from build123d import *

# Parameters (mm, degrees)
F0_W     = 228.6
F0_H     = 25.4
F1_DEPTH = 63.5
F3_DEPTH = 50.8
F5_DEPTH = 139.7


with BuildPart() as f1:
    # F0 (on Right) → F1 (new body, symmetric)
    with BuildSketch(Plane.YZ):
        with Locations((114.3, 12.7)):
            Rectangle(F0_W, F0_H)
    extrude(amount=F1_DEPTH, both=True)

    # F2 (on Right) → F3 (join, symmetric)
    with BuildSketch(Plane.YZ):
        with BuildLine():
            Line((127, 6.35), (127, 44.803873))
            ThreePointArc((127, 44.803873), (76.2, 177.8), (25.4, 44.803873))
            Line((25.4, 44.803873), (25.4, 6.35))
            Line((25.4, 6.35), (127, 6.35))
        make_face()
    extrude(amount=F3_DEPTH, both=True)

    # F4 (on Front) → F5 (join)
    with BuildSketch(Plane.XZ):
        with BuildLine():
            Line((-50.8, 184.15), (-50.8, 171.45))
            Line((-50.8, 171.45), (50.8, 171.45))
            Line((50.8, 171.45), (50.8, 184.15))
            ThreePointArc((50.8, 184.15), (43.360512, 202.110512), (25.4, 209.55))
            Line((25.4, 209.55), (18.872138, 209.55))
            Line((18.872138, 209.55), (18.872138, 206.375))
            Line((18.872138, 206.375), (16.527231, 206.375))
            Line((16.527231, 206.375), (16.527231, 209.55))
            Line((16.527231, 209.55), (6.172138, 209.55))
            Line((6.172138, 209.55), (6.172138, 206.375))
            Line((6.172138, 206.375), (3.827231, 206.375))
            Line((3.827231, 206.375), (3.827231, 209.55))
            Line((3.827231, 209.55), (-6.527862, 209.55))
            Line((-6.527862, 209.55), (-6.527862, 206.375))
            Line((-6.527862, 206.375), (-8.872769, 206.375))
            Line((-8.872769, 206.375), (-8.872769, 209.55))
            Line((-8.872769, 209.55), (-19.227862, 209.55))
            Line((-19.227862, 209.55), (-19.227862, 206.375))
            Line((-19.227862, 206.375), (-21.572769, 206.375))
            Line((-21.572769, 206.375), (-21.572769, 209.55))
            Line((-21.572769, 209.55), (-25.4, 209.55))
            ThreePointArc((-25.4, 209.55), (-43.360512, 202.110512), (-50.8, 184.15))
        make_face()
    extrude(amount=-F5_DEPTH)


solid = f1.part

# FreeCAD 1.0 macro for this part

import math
import FreeCAD as App
import Part
import Sketcher
Q = App.Units.Quantity

doc = App.newDocument("Part")
body = doc.addObject("PartDesign::Body", "Body")

# Sketch on YZ plane
sketch1 = body.newObject("Sketcher::SketchObject", "Sketch")
sketch1.AttachmentSupport = (doc.getObject("YZ_Plane"), [""])
sketch1.MapMode = "FlatFace"
sketch1.addGeometry(Part.LineSegment(App.Vector(0, 25, 0), App.Vector(0, 0, 0)), False)
sketch1.addGeometry(Part.LineSegment(App.Vector(0, 0, 0), App.Vector(229, 0, 0)), False)
sketch1.addGeometry(Part.LineSegment(App.Vector(229, 0, 0), App.Vector(229, 25, 0)), False)
sketch1.addGeometry(Part.LineSegment(App.Vector(229, 25, 0), App.Vector(0, 25, 0)), False)
sketch1.addConstraint(Sketcher.Constraint("Coincident", 0, 2, 1, 1))
sketch1.addConstraint(Sketcher.Constraint("Coincident", 1, 2, 2, 1))
sketch1.addConstraint(Sketcher.Constraint("Coincident", 2, 2, 3, 1))
sketch1.addConstraint(Sketcher.Constraint("Coincident", 3, 2, 0, 1))
sketch1.addConstraint(Sketcher.Constraint("Vertical", 0))
sketch1.addConstraint(Sketcher.Constraint("Horizontal", 1))
sketch1.addConstraint(Sketcher.Constraint("Vertical", 2))
sketch1.addConstraint(Sketcher.Constraint("Horizontal", 3))
sketch1.addConstraint(Sketcher.Constraint("Coincident", 0, 2, -1, 1))
sketch1.addConstraint(Sketcher.Constraint("DistanceX", 1, 1, 1, 2, Q("9 in")))
sketch1.addConstraint(Sketcher.Constraint("DistanceY", 0, 2, 0, 1, Q("1 in")))
pad1 = body.newObject("PartDesign::Pad", "Pad")
pad1.Profile = sketch1
pad1.Length = Q("5 in")
pad1.Midplane = True

# Sketch on YZ plane
sketch2 = body.newObject("Sketcher::SketchObject", "Sketch001")
sketch2.AttachmentSupport = (doc.getObject("YZ_Plane"), [""])
sketch2.MapMode = "FlatFace"
sketch2.addGeometry(Part.LineSegment(App.Vector(127, 6, 0), App.Vector(127, 45, 0)), False)
sketch2.addGeometry(Part.ArcOfCircle(Part.Circle(App.Vector(76, 102, 0), App.Vector(0, 0, 1), 76), math.radians(-48), math.radians(228)), False)
sketch2.addGeometry(Part.LineSegment(App.Vector(25, 45, 0), App.Vector(25, 6, 0)), False)
sketch2.addGeometry(Part.LineSegment(App.Vector(25, 6, 0), App.Vector(127, 6, 0)), False)
sketch2.addConstraint(Sketcher.Constraint("Coincident", 0, 2, 1, 1))
sketch2.addConstraint(Sketcher.Constraint("Coincident", 1, 2, 2, 1))
sketch2.addConstraint(Sketcher.Constraint("Coincident", 2, 2, 3, 1))
sketch2.addConstraint(Sketcher.Constraint("Coincident", 3, 2, 0, 1))
sketch2.addConstraint(Sketcher.Constraint("Vertical", 0))
sketch2.addConstraint(Sketcher.Constraint("Vertical", 2))
sketch2.addConstraint(Sketcher.Constraint("Horizontal", 3))
sketch2.addConstraint(Sketcher.Constraint("Horizontal", 0, 2, 1, 2))
sketch2.addConstraint(Sketcher.Constraint("Radius", 1, Q("3 in")))
sketch2.addConstraint(Sketcher.Constraint("DistanceX", 3, 1, 3, 2, Q("4 in")))
sketch2.addConstraint(Sketcher.Constraint("DistanceX", -1, 1, 1, 3, Q("3 in")))
sketch2.addConstraint(Sketcher.Constraint("DistanceY", -1, 1, 1, 3, Q("4 in")))
sketch2.addConstraint(Sketcher.Constraint("DistanceY", -1, 1, 2, 2, Q("0.25 in")))
pad2 = body.newObject("PartDesign::Pad", "Pad001")
pad2.Profile = sketch2
pad2.Length = Q("4 in")
pad2.Midplane = True

# Sketch on XZ plane
sketch3 = body.newObject("Sketcher::SketchObject", "Sketch002")
sketch3.AttachmentSupport = (doc.getObject("XZ_Plane"), [""])
sketch3.MapMode = "FlatFace"
sketch3.addGeometry(Part.LineSegment(App.Vector(-50.8, 184.2, 0), App.Vector(-50.8, 171.4, 0)), False)
sketch3.addGeometry(Part.LineSegment(App.Vector(-50.8, 171.4, 0), App.Vector(50.8, 171.4, 0)), False)
sketch3.addGeometry(Part.LineSegment(App.Vector(50.8, 171.4, 0), App.Vector(50.8, 184.2, 0)), False)
sketch3.addGeometry(Part.ArcOfCircle(Part.Circle(App.Vector(25.4, 184.1, 0), App.Vector(0, 0, 1), 25.4), math.radians(0), math.radians(90)), False)
sketch3.addGeometry(Part.LineSegment(App.Vector(25.4, 209.6, 0), App.Vector(18.9, 209.6, 0)), False)
sketch3.addGeometry(Part.LineSegment(App.Vector(18.9, 209.6, 0), App.Vector(18.9, 206.4, 0)), False)
sketch3.addGeometry(Part.LineSegment(App.Vector(18.9, 206.4, 0), App.Vector(16.5, 206.4, 0)), False)
sketch3.addGeometry(Part.LineSegment(App.Vector(16.5, 206.4, 0), App.Vector(16.5, 209.6, 0)), False)
sketch3.addGeometry(Part.LineSegment(App.Vector(16.5, 209.6, 0), App.Vector(6.2, 209.6, 0)), False)
sketch3.addGeometry(Part.LineSegment(App.Vector(6.2, 209.6, 0), App.Vector(6.2, 206.4, 0)), False)
sketch3.addGeometry(Part.LineSegment(App.Vector(6.2, 206.4, 0), App.Vector(3.8, 206.4, 0)), False)
sketch3.addGeometry(Part.LineSegment(App.Vector(3.8, 206.4, 0), App.Vector(3.8, 209.6, 0)), False)
sketch3.addGeometry(Part.LineSegment(App.Vector(3.8, 209.6, 0), App.Vector(-6.5, 209.6, 0)), False)
sketch3.addGeometry(Part.LineSegment(App.Vector(-6.5, 209.6, 0), App.Vector(-6.5, 206.4, 0)), False)
sketch3.addGeometry(Part.LineSegment(App.Vector(-6.5, 206.4, 0), App.Vector(-8.9, 206.4, 0)), False)
sketch3.addGeometry(Part.LineSegment(App.Vector(-8.9, 206.4, 0), App.Vector(-8.9, 209.6, 0)), False)
sketch3.addGeometry(Part.LineSegment(App.Vector(-8.9, 209.6, 0), App.Vector(-19.2, 209.6, 0)), False)
sketch3.addGeometry(Part.LineSegment(App.Vector(-19.2, 209.6, 0), App.Vector(-19.2, 206.4, 0)), False)
sketch3.addGeometry(Part.LineSegment(App.Vector(-19.2, 206.4, 0), App.Vector(-21.6, 206.4, 0)), False)
sketch3.addGeometry(Part.LineSegment(App.Vector(-21.6, 206.4, 0), App.Vector(-21.6, 209.6, 0)), False)
sketch3.addGeometry(Part.LineSegment(App.Vector(-21.6, 209.6, 0), App.Vector(-25.4, 209.6, 0)), False)
sketch3.addGeometry(Part.ArcOfCircle(Part.Circle(App.Vector(-25.4, 184.1, 0), App.Vector(0, 0, 1), 25.4), math.radians(90), math.radians(180)), False)
sketch3.addConstraint(Sketcher.Constraint("Coincident", 0, 2, 1, 1))
sketch3.addConstraint(Sketcher.Constraint("Coincident", 1, 2, 2, 1))
sketch3.addConstraint(Sketcher.Constraint("Tangent", 2, 2, 3, 1))
sketch3.addConstraint(Sketcher.Constraint("Tangent", 3, 2, 4, 1))
sketch3.addConstraint(Sketcher.Constraint("Coincident", 4, 2, 5, 1))
sketch3.addConstraint(Sketcher.Constraint("Coincident", 5, 2, 6, 1))
sketch3.addConstraint(Sketcher.Constraint("Coincident", 6, 2, 7, 1))
sketch3.addConstraint(Sketcher.Constraint("Coincident", 7, 2, 8, 1))
sketch3.addConstraint(Sketcher.Constraint("Coincident", 8, 2, 9, 1))
sketch3.addConstraint(Sketcher.Constraint("Coincident", 9, 2, 10, 1))
sketch3.addConstraint(Sketcher.Constraint("Coincident", 10, 2, 11, 1))
sketch3.addConstraint(Sketcher.Constraint("Coincident", 11, 2, 12, 1))
sketch3.addConstraint(Sketcher.Constraint("Coincident", 12, 2, 13, 1))
sketch3.addConstraint(Sketcher.Constraint("Coincident", 13, 2, 14, 1))
sketch3.addConstraint(Sketcher.Constraint("Coincident", 14, 2, 15, 1))
sketch3.addConstraint(Sketcher.Constraint("Coincident", 15, 2, 16, 1))
sketch3.addConstraint(Sketcher.Constraint("Coincident", 16, 2, 17, 1))
sketch3.addConstraint(Sketcher.Constraint("Coincident", 17, 2, 18, 1))
sketch3.addConstraint(Sketcher.Constraint("Coincident", 18, 2, 19, 1))
sketch3.addConstraint(Sketcher.Constraint("Coincident", 19, 2, 20, 1))
sketch3.addConstraint(Sketcher.Constraint("Tangent", 20, 2, 21, 1))
sketch3.addConstraint(Sketcher.Constraint("Tangent", 21, 2, 0, 1))
sketch3.addConstraint(Sketcher.Constraint("Vertical", 0))
sketch3.addConstraint(Sketcher.Constraint("Horizontal", 1))
sketch3.addConstraint(Sketcher.Constraint("Vertical", 2))
sketch3.addConstraint(Sketcher.Constraint("Horizontal", 4))
sketch3.addConstraint(Sketcher.Constraint("Vertical", 5))
sketch3.addConstraint(Sketcher.Constraint("Horizontal", 6))
sketch3.addConstraint(Sketcher.Constraint("Vertical", 7))
sketch3.addConstraint(Sketcher.Constraint("Horizontal", 8))
sketch3.addConstraint(Sketcher.Constraint("Vertical", 9))
sketch3.addConstraint(Sketcher.Constraint("Horizontal", 10))
sketch3.addConstraint(Sketcher.Constraint("Vertical", 11))
sketch3.addConstraint(Sketcher.Constraint("Horizontal", 12))
sketch3.addConstraint(Sketcher.Constraint("Vertical", 13))
sketch3.addConstraint(Sketcher.Constraint("Horizontal", 14))
sketch3.addConstraint(Sketcher.Constraint("Vertical", 15))
sketch3.addConstraint(Sketcher.Constraint("Horizontal", 16))
sketch3.addConstraint(Sketcher.Constraint("Vertical", 17))
sketch3.addConstraint(Sketcher.Constraint("Horizontal", 18))
sketch3.addConstraint(Sketcher.Constraint("Vertical", 19))
sketch3.addConstraint(Sketcher.Constraint("Horizontal", 20))
sketch3.addConstraint(Sketcher.Constraint("Equal", 3, 21))
sketch3.addConstraint(Sketcher.Constraint("Symmetric", 3, 3, 21, 3, -2))
sketch3.addConstraint(Sketcher.Constraint("Horizontal", 4, 2, 7, 2))
sketch3.addConstraint(Sketcher.Constraint("Horizontal", 6, 2, 9, 2))
sketch3.addConstraint(Sketcher.Constraint("Horizontal", 8, 2, 11, 2))
sketch3.addConstraint(Sketcher.Constraint("Horizontal", 10, 2, 13, 2))
sketch3.addConstraint(Sketcher.Constraint("Horizontal", 12, 2, 15, 2))
sketch3.addConstraint(Sketcher.Constraint("Horizontal", 14, 2, 17, 2))
sketch3.addConstraint(Sketcher.Constraint("Equal", 6, 10))
sketch3.addConstraint(Sketcher.Constraint("Equal", 8, 12))
sketch3.addConstraint(Sketcher.Constraint("Equal", 10, 14))
sketch3.addConstraint(Sketcher.Constraint("Equal", 12, 16))
sketch3.addConstraint(Sketcher.Constraint("Equal", 14, 18))
sketch3.addConstraint(Sketcher.Constraint("Radius", 3, Q("1 in")))
sketch3.addConstraint(Sketcher.Constraint("DistanceX", 1, 1, 1, 2, Q("4 in")))
sketch3.addConstraint(Sketcher.Constraint("DistanceY", 0, 2, 0, 1, Q("0.5 in")))
sketch3.addConstraint(Sketcher.Constraint("DistanceX", 8, 2, 4, 2, Q("0.5 in")))
sketch3.addConstraint(Sketcher.Constraint("DistanceY", 5, 2, 5, 1, Q("0.125 in")))
sketch3.addConstraint(Sketcher.Constraint("DistanceY", -1, 1, 3, 3, Q("7.25 in")))
sketch3.addConstraint(Sketcher.Constraint("DistanceX", 4, 2, 4, 1, Q("6.527862 mm")))
sketch3.addConstraint(Sketcher.Constraint("DistanceX", 20, 2, 20, 1, Q("3.827231 mm")))
pad3 = body.newObject("PartDesign::Pad", "Pad002")
pad3.Profile = sketch3
pad3.Length = Q("5.5 in")
pad3.Reversed = True

doc.recompute()
